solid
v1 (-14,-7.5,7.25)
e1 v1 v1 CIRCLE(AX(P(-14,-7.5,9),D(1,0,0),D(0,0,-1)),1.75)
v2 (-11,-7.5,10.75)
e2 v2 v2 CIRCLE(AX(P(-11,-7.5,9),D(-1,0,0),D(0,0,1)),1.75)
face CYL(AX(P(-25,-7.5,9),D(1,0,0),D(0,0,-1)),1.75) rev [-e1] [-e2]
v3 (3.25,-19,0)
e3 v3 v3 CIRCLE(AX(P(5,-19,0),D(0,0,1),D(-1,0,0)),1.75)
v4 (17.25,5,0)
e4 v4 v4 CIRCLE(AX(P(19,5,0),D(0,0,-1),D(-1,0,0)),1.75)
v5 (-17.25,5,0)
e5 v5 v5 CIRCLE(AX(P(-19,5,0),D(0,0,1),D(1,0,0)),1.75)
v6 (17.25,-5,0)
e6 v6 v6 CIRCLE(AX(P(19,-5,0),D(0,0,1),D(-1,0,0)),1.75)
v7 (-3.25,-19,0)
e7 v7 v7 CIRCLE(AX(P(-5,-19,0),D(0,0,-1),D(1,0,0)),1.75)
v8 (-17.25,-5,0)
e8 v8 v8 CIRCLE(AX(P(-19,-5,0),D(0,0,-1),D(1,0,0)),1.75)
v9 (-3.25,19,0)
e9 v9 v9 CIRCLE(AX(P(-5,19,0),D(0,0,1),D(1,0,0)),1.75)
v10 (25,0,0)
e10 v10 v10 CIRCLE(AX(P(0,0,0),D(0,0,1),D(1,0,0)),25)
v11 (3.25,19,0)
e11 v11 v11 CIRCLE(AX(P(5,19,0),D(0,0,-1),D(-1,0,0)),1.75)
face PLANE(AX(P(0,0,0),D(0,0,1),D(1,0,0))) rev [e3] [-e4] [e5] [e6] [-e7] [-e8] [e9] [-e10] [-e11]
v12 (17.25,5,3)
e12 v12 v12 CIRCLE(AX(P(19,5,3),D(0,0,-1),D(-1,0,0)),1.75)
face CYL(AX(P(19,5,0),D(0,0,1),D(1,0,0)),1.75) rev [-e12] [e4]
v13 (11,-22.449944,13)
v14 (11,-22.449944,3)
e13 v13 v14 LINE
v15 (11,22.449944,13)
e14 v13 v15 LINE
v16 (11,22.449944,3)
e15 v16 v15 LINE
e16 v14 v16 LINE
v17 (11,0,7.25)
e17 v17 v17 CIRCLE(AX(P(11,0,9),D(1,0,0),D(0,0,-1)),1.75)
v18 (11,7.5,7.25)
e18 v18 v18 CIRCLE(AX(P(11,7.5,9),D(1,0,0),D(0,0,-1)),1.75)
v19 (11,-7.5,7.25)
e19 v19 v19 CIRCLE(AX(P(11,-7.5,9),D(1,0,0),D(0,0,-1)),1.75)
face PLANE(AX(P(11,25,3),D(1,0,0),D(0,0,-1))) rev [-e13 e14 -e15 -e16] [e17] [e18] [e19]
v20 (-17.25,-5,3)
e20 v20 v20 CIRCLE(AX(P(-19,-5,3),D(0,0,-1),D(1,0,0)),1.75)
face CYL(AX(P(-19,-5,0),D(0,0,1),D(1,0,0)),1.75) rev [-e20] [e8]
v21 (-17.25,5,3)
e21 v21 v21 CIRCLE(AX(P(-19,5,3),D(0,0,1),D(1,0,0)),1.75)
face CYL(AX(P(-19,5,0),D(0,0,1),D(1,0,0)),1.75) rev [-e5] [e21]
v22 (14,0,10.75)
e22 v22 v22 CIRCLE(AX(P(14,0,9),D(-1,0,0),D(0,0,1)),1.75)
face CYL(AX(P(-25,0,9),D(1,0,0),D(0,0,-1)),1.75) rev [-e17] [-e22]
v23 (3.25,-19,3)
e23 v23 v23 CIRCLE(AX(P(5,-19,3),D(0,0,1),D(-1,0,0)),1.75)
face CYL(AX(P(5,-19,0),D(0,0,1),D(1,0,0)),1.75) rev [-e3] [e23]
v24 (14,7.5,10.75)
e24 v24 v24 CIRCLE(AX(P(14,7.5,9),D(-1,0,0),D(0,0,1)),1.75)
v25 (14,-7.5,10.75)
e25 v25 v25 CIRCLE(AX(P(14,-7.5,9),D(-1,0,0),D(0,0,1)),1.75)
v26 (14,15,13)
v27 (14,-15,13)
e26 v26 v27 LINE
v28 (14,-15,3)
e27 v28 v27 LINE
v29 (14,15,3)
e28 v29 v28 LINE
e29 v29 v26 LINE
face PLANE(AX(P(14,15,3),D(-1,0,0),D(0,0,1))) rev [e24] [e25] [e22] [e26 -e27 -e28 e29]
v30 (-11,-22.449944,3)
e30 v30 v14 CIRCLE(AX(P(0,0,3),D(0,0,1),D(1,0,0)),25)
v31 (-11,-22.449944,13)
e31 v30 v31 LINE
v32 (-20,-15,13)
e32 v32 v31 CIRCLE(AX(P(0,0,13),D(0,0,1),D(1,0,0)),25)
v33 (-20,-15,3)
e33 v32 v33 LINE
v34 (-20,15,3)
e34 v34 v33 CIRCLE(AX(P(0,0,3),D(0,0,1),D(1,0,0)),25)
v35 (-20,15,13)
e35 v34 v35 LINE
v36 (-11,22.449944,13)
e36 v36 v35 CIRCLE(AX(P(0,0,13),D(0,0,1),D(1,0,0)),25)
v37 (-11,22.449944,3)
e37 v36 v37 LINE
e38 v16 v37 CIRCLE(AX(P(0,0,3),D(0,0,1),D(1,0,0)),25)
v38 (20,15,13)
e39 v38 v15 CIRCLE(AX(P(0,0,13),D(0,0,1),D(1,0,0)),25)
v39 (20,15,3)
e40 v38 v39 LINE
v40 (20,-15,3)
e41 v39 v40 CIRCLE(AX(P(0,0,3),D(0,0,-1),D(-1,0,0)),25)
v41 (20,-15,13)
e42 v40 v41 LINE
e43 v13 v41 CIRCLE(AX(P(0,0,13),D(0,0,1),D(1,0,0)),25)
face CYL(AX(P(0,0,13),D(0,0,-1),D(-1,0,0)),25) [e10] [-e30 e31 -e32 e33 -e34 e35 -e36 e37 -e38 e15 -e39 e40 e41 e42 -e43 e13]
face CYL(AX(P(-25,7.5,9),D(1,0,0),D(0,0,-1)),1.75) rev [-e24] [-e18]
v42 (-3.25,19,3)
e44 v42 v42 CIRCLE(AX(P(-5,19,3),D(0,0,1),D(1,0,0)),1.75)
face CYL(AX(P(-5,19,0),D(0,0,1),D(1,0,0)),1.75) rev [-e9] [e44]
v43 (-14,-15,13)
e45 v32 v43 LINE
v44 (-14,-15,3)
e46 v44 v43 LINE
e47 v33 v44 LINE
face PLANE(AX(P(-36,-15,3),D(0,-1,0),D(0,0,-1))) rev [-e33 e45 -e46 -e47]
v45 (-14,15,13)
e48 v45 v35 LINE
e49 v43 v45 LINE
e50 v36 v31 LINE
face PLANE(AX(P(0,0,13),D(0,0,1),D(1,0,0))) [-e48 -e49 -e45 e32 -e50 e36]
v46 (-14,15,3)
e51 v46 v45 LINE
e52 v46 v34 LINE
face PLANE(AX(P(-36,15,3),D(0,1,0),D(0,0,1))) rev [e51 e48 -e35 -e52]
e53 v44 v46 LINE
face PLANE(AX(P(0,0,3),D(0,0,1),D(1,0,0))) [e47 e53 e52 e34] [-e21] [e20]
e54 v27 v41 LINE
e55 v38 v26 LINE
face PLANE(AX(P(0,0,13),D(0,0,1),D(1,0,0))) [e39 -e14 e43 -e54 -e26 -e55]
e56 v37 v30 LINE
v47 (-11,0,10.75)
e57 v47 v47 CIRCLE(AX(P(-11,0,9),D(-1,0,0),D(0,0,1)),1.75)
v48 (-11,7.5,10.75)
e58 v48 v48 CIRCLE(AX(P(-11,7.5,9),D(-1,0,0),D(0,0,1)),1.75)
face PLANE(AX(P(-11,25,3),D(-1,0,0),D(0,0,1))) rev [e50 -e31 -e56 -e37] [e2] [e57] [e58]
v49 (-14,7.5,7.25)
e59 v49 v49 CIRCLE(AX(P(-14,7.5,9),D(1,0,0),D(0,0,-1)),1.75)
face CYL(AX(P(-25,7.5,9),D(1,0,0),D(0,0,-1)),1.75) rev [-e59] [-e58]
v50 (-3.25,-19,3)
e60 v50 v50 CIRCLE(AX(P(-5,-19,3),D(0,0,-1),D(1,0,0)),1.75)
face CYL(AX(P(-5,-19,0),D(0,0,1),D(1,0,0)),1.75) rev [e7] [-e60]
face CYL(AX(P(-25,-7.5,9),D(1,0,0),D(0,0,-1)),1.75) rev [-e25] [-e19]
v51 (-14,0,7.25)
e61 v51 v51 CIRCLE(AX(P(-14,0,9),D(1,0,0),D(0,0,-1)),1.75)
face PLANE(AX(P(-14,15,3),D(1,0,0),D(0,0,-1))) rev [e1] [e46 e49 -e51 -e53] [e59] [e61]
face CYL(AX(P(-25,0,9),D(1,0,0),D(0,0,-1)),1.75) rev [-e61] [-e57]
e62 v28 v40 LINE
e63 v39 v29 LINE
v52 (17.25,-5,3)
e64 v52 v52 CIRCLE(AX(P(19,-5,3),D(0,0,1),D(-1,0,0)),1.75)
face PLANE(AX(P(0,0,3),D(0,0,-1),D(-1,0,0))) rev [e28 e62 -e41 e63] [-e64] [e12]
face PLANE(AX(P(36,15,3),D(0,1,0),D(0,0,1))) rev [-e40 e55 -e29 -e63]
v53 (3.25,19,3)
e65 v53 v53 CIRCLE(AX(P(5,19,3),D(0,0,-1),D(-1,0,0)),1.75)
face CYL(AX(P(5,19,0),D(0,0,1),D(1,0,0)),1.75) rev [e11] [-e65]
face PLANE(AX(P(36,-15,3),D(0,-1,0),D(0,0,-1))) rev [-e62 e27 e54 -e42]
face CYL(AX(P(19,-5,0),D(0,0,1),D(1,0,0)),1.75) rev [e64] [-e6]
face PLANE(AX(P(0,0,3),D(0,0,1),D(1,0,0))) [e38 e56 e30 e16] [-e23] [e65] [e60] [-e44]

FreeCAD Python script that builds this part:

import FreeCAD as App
import Part
import Sketcher

V = App.Vector
Q = App.Units.Quantity


def add_polygon(sketch, points):
    """Adds a closed chain of lines whose ends are joined by coincident constraints."""
    first, n = sketch.GeometryCount, len(points)
    for a, b in zip(points, points[1:] + points[:1]):
        sketch.addGeometry(Part.LineSegment(App.Vector(*a, 0), App.Vector(*b, 0)), False)
    for i in range(n):
        sketch.addConstraint(Sketcher.Constraint("Coincident", first + i, 2, first + (i + 1) % n, 1))

doc = App.newDocument("Part")
params = doc.addObject("Spreadsheet::Sheet", "Params")
for row, (alias, value) in enumerate([
    ("sketch1_diameter", "50 mm"),
    ("pad1_length", "13 mm"),
    ("sketch2_width", "22 mm"),
    ("sketch2_height", "50 mm"),
    ("sketch2_height2", "30 mm"),
    ("pocket1_length", "10 mm"),
    ("sketch3_diameter", "3.5 mm"),
    ("sketch4_diameter", "3.5 mm"),
    ("sketch5_diameter", "3.5 mm"),
], start=1):
    params.set(f"A{row}", alias)
    params.set(f"B{row}", "=" + value)
    params.setAlias(f"B{row}", alias)

body = doc.addObject("PartDesign::Body", "Body")

# Sketch on XY plane
sketch1 = body.newObject("Sketcher::SketchObject", "Sketch")
sketch1.AttachmentSupport = (doc.getObject("XY_Plane"), [""])
sketch1.MapMode = "FlatFace"
sketch1.addGeometry(Part.Circle(V(0, 0, 0), V(0, 0, 1), 25), False)
sketch1.addConstraint([
    Sketcher.Constraint("Coincident", 0, 3, -1, 1),
    Sketcher.Constraint("Diameter", 0, Q("50 mm")),
])
sketch1.setExpression("Constraints[1]", "Params.sketch1_diameter")
pad1 = body.newObject("PartDesign::Pad", "Pad")
pad1.Profile = sketch1
pad1.setExpression("Length", "Params.pad1_length")

# Sketch on XY plane
sketch2 = body.newObject("Sketcher::SketchObject", "Sketch001")
sketch2.AttachmentSupport = (doc.getObject("XY_Plane"), [""])
sketch2.MapMode = "FlatFace"
sketch2.AttachmentOffset = App.Placement(V(0, 0, 13), App.Rotation())
add_polygon(sketch2, [(-11, 25), (-11, -25), (11, -25), (11, 25)])  # lines 0-3
add_polygon(sketch2, [(14, 15), (14, -15), (36, -15), (36, 15)])  # lines 4-7
add_polygon(sketch2, [(-36, 15), (-36, -15), (-14, -15), (-14, 15)])  # lines 8-11
sketch2.addConstraint([
    Sketcher.Constraint("Vertical", 0),
    Sketcher.Constraint("Horizontal", 1),
    Sketcher.Constraint("Vertical", 2),
    Sketcher.Constraint("Horizontal", 3),
    Sketcher.Constraint("Vertical", 4),
    Sketcher.Constraint("Horizontal", 5),
    Sketcher.Constraint("Vertical", 6),
    Sketcher.Constraint("Horizontal", 7),
    Sketcher.Constraint("Vertical", 8),
    Sketcher.Constraint("Horizontal", 9),
    Sketcher.Constraint("Vertical", 10),
    Sketcher.Constraint("Horizontal", 11),
    Sketcher.Constraint("Symmetric", 0, 2, 2, 2, -1, 1),
    Sketcher.Constraint("Symmetric", 6, 2, 8, 2, -1, 1),
    Sketcher.Constraint("Symmetric", 4, 2, 10, 2, -1, 1),
    Sketcher.Constraint("Horizontal", 5, 2, 8, 2),
    Sketcher.Constraint("Equal", 3, 5),
    Sketcher.Constraint("DistanceX", 1, 1, 1, 2, Q("22 mm")),
    Sketcher.Constraint("DistanceY", 0, 2, 0, 1, Q("50 mm")),
    Sketcher.Constraint("DistanceY", 4, 2, 4, 1, Q("30 mm")),
    Sketcher.Constraint("DistanceX", -1, 1, 4, 2, Q("14 mm")),
])
sketch2.setExpression("Constraints[29]", "Params.sketch2_width")
sketch2.setExpression("Constraints[30]", "Params.sketch2_height")
sketch2.setExpression("Constraints[31]", "Params.sketch2_height2")
pocket1 = body.newObject("PartDesign::Pocket", "Pocket")
pocket1.Profile = sketch2
pocket1.setExpression("Length", "Params.pocket1_length")

# Sketch on YZ plane
sketch3 = body.newObject("Sketcher::SketchObject", "Sketch002")
sketch3.AttachmentSupport = (doc.getObject("YZ_Plane"), [""])
sketch3.MapMode = "FlatFace"
sketch3.addGeometry([
    Part.Circle(V(7.5, 9, 0), V(0, 0, 1), 1.8),
    Part.Circle(V(0, 9, 0), V(0, 0, 1), 1.8),
    Part.Circle(V(-7.5, 9, 0), V(0, 0, 1), 1.8),
], False)
sketch3.addConstraint([
    Sketcher.Constraint("Equal", 0, 1),
    Sketcher.Constraint("Equal", 1, 2),
    Sketcher.Constraint("Symmetric", 0, 3, 2, 3, -2),
    Sketcher.Constraint("PointOnObject", 1, 3, -2),
    Sketcher.Constraint("Horizontal", 0, 3, 1, 3),
    Sketcher.Constraint("Diameter", 0, Q("3.5 mm")),
    Sketcher.Constraint("DistanceY", -1, 1, 0, 3, Q("9 mm")),
    Sketcher.Constraint("DistanceX", 2, 3, 0, 3, Q("15 mm")),
])
sketch3.setExpression("Constraints[5]", "Params.sketch3_diameter")
pocket2 = body.newObject("PartDesign::Pocket", "Pocket001")
pocket2.Profile = sketch3
pocket2.Type = "ThroughAll"
pocket2.Midplane = True

# Sketch on XY plane
sketch4 = body.newObject("Sketcher::SketchObject", "Sketch003")
sketch4.AttachmentSupport = (doc.getObject("XY_Plane"), [""])
sketch4.MapMode = "FlatFace"
sketch4.AttachmentOffset = App.Placement(V(0, 0, 3), App.Rotation())
sketch4.addGeometry([
    Part.Circle(V(-19, 5, 0), V(0, 0, 1), 1.8),
    Part.Circle(V(-5, 19, 0), V(0, 0, 1), 1.8),
], False)
sketch4.addConstraint([
    Sketcher.Constraint("Equal", 0, 1),
    Sketcher.Constraint("Diameter", 0, Q("3.5 mm")),
    Sketcher.Constraint("DistanceX", 0, 3, -1, 1, Q("19 mm")),
    Sketcher.Constraint("DistanceY", -1, 1, 0, 3, Q("5 mm")),
    Sketcher.Constraint("DistanceX", 1, 3, -1, 1, Q("5 mm")),
    Sketcher.Constraint("DistanceY", -1, 1, 1, 3, Q("19 mm")),
])
sketch4.setExpression("Constraints[1]", "Params.sketch4_diameter")
pocket3 = body.newObject("PartDesign::Pocket", "Pocket002")
pocket3.Profile = sketch4
pocket3.Type = "ThroughAll"
doc.recompute()

mirrored = body.newObject("PartDesign::Mirrored", "Mirrored")
mirrored.Originals = [pocket3]
mirrored.MirrorPlane = (doc.getObject("YZ_Plane"), [""])
body.Tip = mirrored
doc.recompute()

mirrored2 = body.newObject("PartDesign::Mirrored", "Mirrored001")
mirrored2.Originals = [pocket3]
mirrored2.MirrorPlane = (doc.getObject("XZ_Plane"), [""])
body.Tip = mirrored2

# Sketch on XY plane
sketch5 = body.newObject("Sketcher::SketchObject", "Sketch004")
sketch5.AttachmentSupport = (doc.getObject("XY_Plane"), [""])
sketch5.MapMode = "FlatFace"
sketch5.AttachmentOffset = App.Placement(V(0, 0, 3), App.Rotation())
sketch5.addGeometry([
    Part.Circle(V(19, -5, 0), V(0, 0, 1), 1.8),
    Part.Circle(V(5, -19, 0), V(0, 0, 1), 1.8),
], False)
sketch5.addConstraint([
    Sketcher.Constraint("Equal", 0, 1),
    Sketcher.Constraint("Diameter", 0, Q("3.5 mm")),
    Sketcher.Constraint("DistanceX", -1, 1, 0, 3, Q("19 mm")),
    Sketcher.Constraint("DistanceY", 0, 3, -1, 1, Q("5 mm")),
    Sketcher.Constraint("DistanceX", -1, 1, 1, 3, Q("5 mm")),
    Sketcher.Constraint("DistanceY", 1, 3, -1, 1, Q("19 mm")),
])
sketch5.setExpression("Constraints[1]", "Params.sketch5_diameter")
pocket4 = body.newObject("PartDesign::Pocket", "Pocket003")
pocket4.Profile = sketch5
pocket4.Type = "ThroughAll"

doc.recompute()
